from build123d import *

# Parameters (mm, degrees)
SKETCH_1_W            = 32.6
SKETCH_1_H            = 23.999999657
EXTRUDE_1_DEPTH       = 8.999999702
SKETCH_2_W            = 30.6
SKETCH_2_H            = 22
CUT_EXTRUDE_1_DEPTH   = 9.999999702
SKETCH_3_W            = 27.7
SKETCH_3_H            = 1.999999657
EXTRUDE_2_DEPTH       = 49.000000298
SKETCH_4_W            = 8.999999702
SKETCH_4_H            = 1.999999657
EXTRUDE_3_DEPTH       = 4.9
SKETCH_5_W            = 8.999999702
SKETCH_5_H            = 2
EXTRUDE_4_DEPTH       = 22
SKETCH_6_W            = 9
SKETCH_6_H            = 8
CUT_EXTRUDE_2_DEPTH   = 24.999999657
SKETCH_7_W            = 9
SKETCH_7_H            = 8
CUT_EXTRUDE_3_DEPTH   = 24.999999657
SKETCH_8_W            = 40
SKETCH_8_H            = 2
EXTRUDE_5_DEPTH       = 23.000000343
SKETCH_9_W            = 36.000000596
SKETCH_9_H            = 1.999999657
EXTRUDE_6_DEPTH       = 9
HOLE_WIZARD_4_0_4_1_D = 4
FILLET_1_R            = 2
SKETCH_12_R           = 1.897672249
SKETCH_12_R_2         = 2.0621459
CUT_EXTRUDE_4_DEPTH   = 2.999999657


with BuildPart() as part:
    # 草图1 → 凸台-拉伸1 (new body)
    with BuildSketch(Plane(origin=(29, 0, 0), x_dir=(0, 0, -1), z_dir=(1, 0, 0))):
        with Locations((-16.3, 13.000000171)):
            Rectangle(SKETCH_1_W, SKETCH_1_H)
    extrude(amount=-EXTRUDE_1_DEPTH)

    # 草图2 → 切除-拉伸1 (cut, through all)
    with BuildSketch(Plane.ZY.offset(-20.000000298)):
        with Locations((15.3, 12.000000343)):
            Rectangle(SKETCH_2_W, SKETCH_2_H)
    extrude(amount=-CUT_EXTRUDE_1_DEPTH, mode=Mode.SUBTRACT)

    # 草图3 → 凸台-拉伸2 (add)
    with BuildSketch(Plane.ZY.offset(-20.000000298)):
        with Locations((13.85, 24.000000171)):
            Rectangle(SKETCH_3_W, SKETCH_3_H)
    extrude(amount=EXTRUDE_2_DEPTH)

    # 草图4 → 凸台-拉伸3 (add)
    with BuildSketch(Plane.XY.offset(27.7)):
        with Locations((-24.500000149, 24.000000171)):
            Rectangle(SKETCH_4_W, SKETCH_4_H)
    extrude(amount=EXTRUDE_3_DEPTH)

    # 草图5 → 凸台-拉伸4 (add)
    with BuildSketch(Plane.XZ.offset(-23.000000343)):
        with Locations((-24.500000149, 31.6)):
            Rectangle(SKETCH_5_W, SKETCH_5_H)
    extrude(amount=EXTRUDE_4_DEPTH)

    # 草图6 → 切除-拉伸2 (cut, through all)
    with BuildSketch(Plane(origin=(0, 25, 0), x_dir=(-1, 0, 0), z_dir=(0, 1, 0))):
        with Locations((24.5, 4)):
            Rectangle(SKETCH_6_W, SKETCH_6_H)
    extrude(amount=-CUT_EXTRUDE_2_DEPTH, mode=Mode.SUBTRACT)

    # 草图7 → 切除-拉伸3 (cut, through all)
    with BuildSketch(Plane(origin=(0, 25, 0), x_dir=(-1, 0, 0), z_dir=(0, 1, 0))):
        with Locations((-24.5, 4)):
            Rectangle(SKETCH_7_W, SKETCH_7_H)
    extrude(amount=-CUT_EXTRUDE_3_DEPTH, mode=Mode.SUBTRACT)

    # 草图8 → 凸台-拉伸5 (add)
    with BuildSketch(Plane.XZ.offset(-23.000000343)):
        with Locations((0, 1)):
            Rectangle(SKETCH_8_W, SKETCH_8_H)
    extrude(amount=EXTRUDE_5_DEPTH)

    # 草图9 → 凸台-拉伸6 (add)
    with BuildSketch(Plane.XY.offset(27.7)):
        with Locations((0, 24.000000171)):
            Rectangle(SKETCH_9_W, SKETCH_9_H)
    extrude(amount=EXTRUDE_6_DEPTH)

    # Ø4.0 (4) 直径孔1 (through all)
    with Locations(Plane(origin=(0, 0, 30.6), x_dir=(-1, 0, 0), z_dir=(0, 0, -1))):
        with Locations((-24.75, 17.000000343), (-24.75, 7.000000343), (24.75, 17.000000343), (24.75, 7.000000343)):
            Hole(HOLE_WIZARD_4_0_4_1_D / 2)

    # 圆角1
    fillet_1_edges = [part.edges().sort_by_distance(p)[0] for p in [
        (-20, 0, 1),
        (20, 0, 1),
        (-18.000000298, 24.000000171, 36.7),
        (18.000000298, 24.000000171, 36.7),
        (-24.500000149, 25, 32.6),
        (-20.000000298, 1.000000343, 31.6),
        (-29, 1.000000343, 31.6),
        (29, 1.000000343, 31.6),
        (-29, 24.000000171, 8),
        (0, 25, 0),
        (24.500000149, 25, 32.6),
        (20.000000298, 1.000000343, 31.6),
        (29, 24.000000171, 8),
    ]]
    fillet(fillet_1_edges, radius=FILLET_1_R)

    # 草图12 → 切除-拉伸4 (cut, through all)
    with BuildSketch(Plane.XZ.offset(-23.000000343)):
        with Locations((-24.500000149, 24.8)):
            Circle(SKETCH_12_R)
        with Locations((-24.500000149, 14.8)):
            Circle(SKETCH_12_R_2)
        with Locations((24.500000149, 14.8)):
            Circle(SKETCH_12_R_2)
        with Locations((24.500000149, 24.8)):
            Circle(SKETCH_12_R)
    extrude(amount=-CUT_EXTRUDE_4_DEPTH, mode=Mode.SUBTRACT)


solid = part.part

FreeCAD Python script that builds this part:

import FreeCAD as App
import Part
import Sketcher


def edges_at(feature, points):
    """Names of the edges that pass closest to the given points."""
    edges = feature.Shape.Edges
    near = lambda p: min(range(len(edges)), key=lambda i: edges[i].distToShape(Part.Vertex(*p))[0])
    return sorted({f"Edge{near(p) + 1}" for p in points})


def add_polygon(sketch, points):
    """Adds a closed chain of lines whose ends are joined by coincident constraints."""
    first, n = sketch.GeometryCount, len(points)
    for a, b in zip(points, points[1:] + points[:1]):
        sketch.addGeometry(Part.LineSegment(App.Vector(*a, 0), App.Vector(*b, 0)), False)
    for i in range(n):
        sketch.addConstraint(Sketcher.Constraint("Coincident", first + i, 2, first + (i + 1) % n, 1))

doc = App.newDocument("Part")
body = doc.addObject("PartDesign::Body", "Body")

sketch1 = body.newObject("Sketcher::SketchObject", "Sketch")
sketch1.AttachmentSupport = (doc.getObject("YZ_Plane"), [""])
sketch1.MapMode = "FlatFace"
sketch1.AttachmentOffset = App.Placement(App.Vector(0, 0, 29), App.Rotation())
add_polygon(sketch1, [(25, 32.6), (1, 32.6), (1, 0), (25, 0)])
sketch1.addConstraint([
    Sketcher.Constraint("Horizontal", 0),
    Sketcher.Constraint("Vertical", 1),
    Sketcher.Constraint("Horizontal", 2),
    Sketcher.Constraint("Vertical", 3),
    Sketcher.Constraint("PointOnObject", 1, 2, -1),
    Sketcher.Constraint("DistanceX", 0, 2, 0, 1, 24.0),
    Sketcher.Constraint("DistanceY", 1, 2, 1, 1, 32.6),
    Sketcher.Constraint("DistanceX", -1, 1, 0, 2, 1.0),
])
pad1 = body.newObject("PartDesign::Pad", "Pad")
pad1.Profile = sketch1
pad1.Length = 9
pad1.Reversed = True

sketch2 = body.newObject("Sketcher::SketchObject", "Sketch001")
sketch2.AttachmentSupport = (doc.getObject("YZ_Plane"), [""])
sketch2.MapMode = "FlatFace"
sketch2.AttachmentOffset = App.Placement(App.Vector(0, 0, 20), App.Rotation())
add_polygon(sketch2, [(23, 0), (1, 0), (1, 30.6), (23, 30.6)])
sketch2.addConstraint([
    Sketcher.Constraint("Horizontal", 0),
    Sketcher.Constraint("Vertical", 1),
    Sketcher.Constraint("Horizontal", 2),
    Sketcher.Constraint("Vertical", 3),
    Sketcher.Constraint("PointOnObject", 0, 2, -1),
    Sketcher.Constraint("DistanceX", 0, 2, 0, 1, 22.0),
    Sketcher.Constraint("DistanceY", 1, 1, 1, 2, 30.6),
    Sketcher.Constraint("DistanceX", -1, 1, 0, 2, 1.0),
])
pocket1 = body.newObject("PartDesign::Pocket", "Pocket")
pocket1.Profile = sketch2
pocket1.Type = "ThroughAll"
pocket1.Reversed = True

sketch3 = body.newObject("Sketcher::SketchObject", "Sketch002")
sketch3.AttachmentSupport = (doc.getObject("YZ_Plane"), [""])
sketch3.MapMode = "FlatFace"
sketch3.AttachmentOffset = App.Placement(App.Vector(0, 0, 20), App.Rotation())
add_polygon(sketch3, [(25, 0), (23, 0), (23, 27.7), (25, 27.7)])
sketch3.addConstraint([
    Sketcher.Constraint("Horizontal", 0),
    Sketcher.Constraint("Vertical", 1),
    Sketcher.Constraint("Horizontal", 2),
    Sketcher.Constraint("Vertical", 3),
    Sketcher.Constraint("PointOnObject", 0, 2, -1),
    Sketcher.Constraint("DistanceX", 0, 2, 0, 1, 2.0),
    Sketcher.Constraint("DistanceY", 1, 1, 1, 2, 27.7),
    Sketcher.Constraint("DistanceX", -1, 1, 0, 2, 23.0),
])
pad2 = body.newObject("PartDesign::Pad", "Pad001")
pad2.Profile = sketch3
pad2.Length = 49
pad2.Reversed = True

sketch4 = body.newObject("Sketcher::SketchObject", "Sketch003")
sketch4.AttachmentSupport = (doc.getObject("XY_Plane"), [""])
sketch4.MapMode = "FlatFace"
sketch4.AttachmentOffset = App.Placement(App.Vector(0, 0, 27.7), App.Rotation())
add_polygon(sketch4, [(-29, 25), (-29, 23), (-20, 23), (-20, 25)])
sketch4.addConstraint([
    Sketcher.Constraint("Vertical", 0),
    Sketcher.Constraint("Horizontal", 1),
    Sketcher.Constraint("Vertical", 2),
    Sketcher.Constraint("Horizontal", 3),
    Sketcher.Constraint("DistanceX", 1, 1, 1, 2, 9.0),
    Sketcher.Constraint("DistanceY", 0, 2, 0, 1, 2.0),
    Sketcher.Constraint("DistanceX", 0, 2, -1, 1, 29.0),
    Sketcher.Constraint("DistanceY", -1, 1, 0, 2, 23.0),
])
pad3 = body.newObject("PartDesign::Pad", "Pad002")
pad3.Profile = sketch4
pad3.Length = 4.9

sketch5 = body.newObject("Sketcher::SketchObject", "Sketch004")
sketch5.AttachmentSupport = (doc.getObject("XZ_Plane"), [""])
sketch5.MapMode = "FlatFace"
sketch5.AttachmentOffset = App.Placement(App.Vector(0, 0, -23), App.Rotation())
add_polygon(sketch5, [(-29, 32.6), (-29, 30.6), (-20, 30.6), (-20, 32.6)])
sketch5.addConstraint([
    Sketcher.Constraint("Vertical", 0),
    Sketcher.Constraint("Horizontal", 1),
    Sketcher.Constraint("Vertical", 2),
    Sketcher.Constraint("Horizontal", 3),
    Sketcher.Constraint("DistanceX", 1, 1, 1, 2, 9.0),
    Sketcher.Constraint("DistanceY", 0, 2, 0, 1, 2.0),
    Sketcher.Constraint("DistanceX", 0, 2, -1, 1, 29.0),
    Sketcher.Constraint("DistanceY", -1, 1, 0, 2, 30.6),
])
pad4 = body.newObject("PartDesign::Pad", "Pad003")
pad4.Profile = sketch5
pad4.Length = 22

sketch6 = body.newObject("Sketcher::SketchObject", "Sketch005")
sketch6.AttachmentSupport = (doc.getObject("XZ_Plane"), [""])
sketch6.MapMode = "FlatFace"
sketch6.AttachmentOffset = App.Placement(App.Vector(0, 0, -25), App.Rotation())
add_polygon(sketch6, [(-20, 8), (-20, 0), (-29, 0), (-29, 8)])
sketch6.addConstraint([
    Sketcher.Constraint("Vertical", 0),
    Sketcher.Constraint("Horizontal", 1),
    Sketcher.Constraint("Vertical", 2),
    Sketcher.Constraint("Horizontal", 3),
    Sketcher.Constraint("PointOnObject", 0, 2, -1),
    Sketcher.Constraint("DistanceX", 1, 2, 1, 1, 9.0),
    Sketcher.Constraint("DistanceY", 0, 2, 0, 1, 8.0),
    Sketcher.Constraint("DistanceX", 0, 2, -1, 1, 20.0),
])
pocket2 = body.newObject("PartDesign::Pocket", "Pocket001")
pocket2.Profile = sketch6
pocket2.Type = "ThroughAll"
pocket2.Reversed = True

sketch7 = body.newObject("Sketcher::SketchObject", "Sketch006")
sketch7.AttachmentSupport = (doc.getObject("XZ_Plane"), [""])
sketch7.MapMode = "FlatFace"
sketch7.AttachmentOffset = App.Placement(App.Vector(0, 0, -25), App.Rotation())
add_polygon(sketch7, [(29, 8), (29, 0), (20, 0), (20, 8)])
sketch7.addConstraint([
    Sketcher.Constraint("Vertical", 0),
    Sketcher.Constraint("Horizontal", 1),
    Sketcher.Constraint("Vertical", 2),
    Sketcher.Constraint("Horizontal", 3),
    Sketcher.Constraint("PointOnObject", 0, 2, -1),
    Sketcher.Constraint("DistanceX", 1, 2, 1, 1, 9.0),
    Sketcher.Constraint("DistanceY", 0, 2, 0, 1, 8.0),
    Sketcher.Constraint("DistanceX", -1, 1, 0, 2, 29.0),
])
pocket3 = body.newObject("PartDesign::Pocket", "Pocket002")
pocket3.Profile = sketch7
pocket3.Type = "ThroughAll"
pocket3.Reversed = True

sketch8 = body.newObject("Sketcher::SketchObject", "Sketch007")
sketch8.AttachmentSupport = (doc.getObject("XZ_Plane"), [""])
sketch8.MapMode = "FlatFace"
sketch8.AttachmentOffset = App.Placement(App.Vector(0, 0, -23), App.Rotation())
add_polygon(sketch8, [(-20, 2), (-20, 0), (20, 0), (20, 2)])
sketch8.addConstraint([
    Sketcher.Constraint("Vertical", 0),
    Sketcher.Constraint("Horizontal", 1),
    Sketcher.Constraint("Vertical", 2),
    Sketcher.Constraint("Horizontal", 3),
    Sketcher.Constraint("Symmetric", 0, 2, 1, 2, -1, 1),
    Sketcher.Constraint("DistanceX", 1, 1, 1, 2, 40.0),
    Sketcher.Constraint("DistanceY", 0, 2, 0, 1, 2.0),
])
pad5 = body.newObject("PartDesign::Pad", "Pad004")
pad5.Profile = sketch8
pad5.Length = 23

sketch9 = body.newObject("Sketcher::SketchObject", "Sketch008")
sketch9.AttachmentSupport = (doc.getObject("XY_Plane"), [""])
sketch9.MapMode = "FlatFace"
sketch9.AttachmentOffset = App.Placement(App.Vector(0, 0, 27.7), App.Rotation())
add_polygon(sketch9, [(-18, 25), (-18, 23), (18, 23), (18, 25)])
sketch9.addConstraint([
    Sketcher.Constraint("Vertical", 0),
    Sketcher.Constraint("Horizontal", 1),
    Sketcher.Constraint("Vertical", 2),
    Sketcher.Constraint("Horizontal", 3),
    Sketcher.Constraint("DistanceX", 1, 1, 1, 2, 36.000001),
    Sketcher.Constraint("DistanceY", 0, 2, 0, 1, 2.0),
    Sketcher.Constraint("DistanceX", 0, 2, -1, 1, 18.0),
    Sketcher.Constraint("DistanceY", -1, 1, 0, 2, 23.0),
])
pad6 = body.newObject("PartDesign::Pad", "Pad005")
pad6.Profile = sketch9
pad6.Length = 9

sketch10 = body.newObject("Sketcher::SketchObject", "Sketch009")
sketch10.AttachmentSupport = (doc.getObject("XY_Plane"), [""])
sketch10.MapMode = "FlatFace"
sketch10.AttachmentOffset = App.Placement(App.Vector(0, 0, 30.6), App.Rotation())
sketch10.addGeometry([
    Part.Circle(App.Vector(24.75, 17, 0), App.Vector(0, 0, 1), 2),
    Part.Circle(App.Vector(24.75, 7, 0), App.Vector(0, 0, 1), 2),
    Part.Circle(App.Vector(-24.75, 17, 0), App.Vector(0, 0, 1), 2),
    Part.Circle(App.Vector(-24.75, 7, 0), App.Vector(0, 0, 1), 2),
], False)
sketch10.addConstraint([
    Sketcher.Constraint("Equal", 0, 1),
    Sketcher.Constraint("Equal", 1, 2),
    Sketcher.Constraint("Equal", 2, 3),
    Sketcher.Constraint("Symmetric", 0, 3, 2, 3, -2),
    Sketcher.Constraint("Symmetric", 1, 3, 3, 3, -2),
    Sketcher.Constraint("Vertical", 0, 3, 1, 3),
    Sketcher.Constraint("Diameter", 0, 4.0),
    Sketcher.Constraint("DistanceY", -1, 1, 0, 3, 17.0),
    Sketcher.Constraint("DistanceY", -1, 1, 1, 3, 7.0),
    Sketcher.Constraint("DistanceX", 2, 3, 0, 3, 49.5),
])
doc.recompute()
hole = body.newObject("PartDesign::Hole", "Hole")
hole.Profile = sketch10
hole.ThreadType = "None"
hole.Diameter = 4
hole.DepthType = "ThroughAll"
hole.Reversed = True
doc.recompute()

fillet = body.newObject("PartDesign::Fillet", "Fillet")
fillet.Base = (hole, edges_at(hole, [
    (-20, 0, 1),
    (20, 0, 1),
    (-18, 24, 36.7),
    (18, 24, 36.7),
    (-24.5, 25, 32.6),
    (-20, 1, 31.6),
    (-29, 1, 31.6),
    (29, 1, 31.6),
    (-29, 24, 8),
    (0, 25, 0),
    (24.5, 25, 32.6),
    (20, 1, 31.6),
    (29, 24, 8),
]))
fillet.Radius = 2

sketch11 = body.newObject("Sketcher::SketchObject", "Sketch010")
sketch11.AttachmentSupport = (doc.getObject("XZ_Plane"), [""])
sketch11.MapMode = "FlatFace"
sketch11.AttachmentOffset = App.Placement(App.Vector(0, 0, -23), App.Rotation())
sketch11.addGeometry([
    Part.Circle(App.Vector(-24.5, 24.8, 0), App.Vector(0, 0, 1), 1.897672),
    Part.Circle(App.Vector(-24.5, 14.8, 0), App.Vector(0, 0, 1), 2.062146),
    Part.Circle(App.Vector(24.5, 14.8, 0), App.Vector(0, 0, 1), 2.062146),
    Part.Circle(App.Vector(24.5, 24.8, 0), App.Vector(0, 0, 1), 1.897672),
], False)
sketch11.addConstraint([
    Sketcher.Constraint("Equal", 1, 2),
    Sketcher.Constraint("Equal", 0, 3),
    Sketcher.Constraint("Symmetric", 1, 3, 2, 3, -2),
    Sketcher.Constraint("Symmetric", 0, 3, 3, 3, -2),
    Sketcher.Constraint("Vertical", 0, 3, 1, 3),
    Sketcher.Constraint("DistanceY", 1, 3, 0, 3, 10.0),
    Sketcher.Constraint("DistanceX", 1, 3, 2, 3, 49.0),
    Sketcher.Constraint("DistanceY", -1, 1, 0, 3, 24.8),
    Sketcher.Constraint("Diameter", 1, 4.124292),
    Sketcher.Constraint("Diameter", 0, 3.795344),
])
pocket4 = body.newObject("PartDesign::Pocket", "Pocket003")
pocket4.Profile = sketch11
pocket4.Type = "ThroughAll"

doc.recompute()
